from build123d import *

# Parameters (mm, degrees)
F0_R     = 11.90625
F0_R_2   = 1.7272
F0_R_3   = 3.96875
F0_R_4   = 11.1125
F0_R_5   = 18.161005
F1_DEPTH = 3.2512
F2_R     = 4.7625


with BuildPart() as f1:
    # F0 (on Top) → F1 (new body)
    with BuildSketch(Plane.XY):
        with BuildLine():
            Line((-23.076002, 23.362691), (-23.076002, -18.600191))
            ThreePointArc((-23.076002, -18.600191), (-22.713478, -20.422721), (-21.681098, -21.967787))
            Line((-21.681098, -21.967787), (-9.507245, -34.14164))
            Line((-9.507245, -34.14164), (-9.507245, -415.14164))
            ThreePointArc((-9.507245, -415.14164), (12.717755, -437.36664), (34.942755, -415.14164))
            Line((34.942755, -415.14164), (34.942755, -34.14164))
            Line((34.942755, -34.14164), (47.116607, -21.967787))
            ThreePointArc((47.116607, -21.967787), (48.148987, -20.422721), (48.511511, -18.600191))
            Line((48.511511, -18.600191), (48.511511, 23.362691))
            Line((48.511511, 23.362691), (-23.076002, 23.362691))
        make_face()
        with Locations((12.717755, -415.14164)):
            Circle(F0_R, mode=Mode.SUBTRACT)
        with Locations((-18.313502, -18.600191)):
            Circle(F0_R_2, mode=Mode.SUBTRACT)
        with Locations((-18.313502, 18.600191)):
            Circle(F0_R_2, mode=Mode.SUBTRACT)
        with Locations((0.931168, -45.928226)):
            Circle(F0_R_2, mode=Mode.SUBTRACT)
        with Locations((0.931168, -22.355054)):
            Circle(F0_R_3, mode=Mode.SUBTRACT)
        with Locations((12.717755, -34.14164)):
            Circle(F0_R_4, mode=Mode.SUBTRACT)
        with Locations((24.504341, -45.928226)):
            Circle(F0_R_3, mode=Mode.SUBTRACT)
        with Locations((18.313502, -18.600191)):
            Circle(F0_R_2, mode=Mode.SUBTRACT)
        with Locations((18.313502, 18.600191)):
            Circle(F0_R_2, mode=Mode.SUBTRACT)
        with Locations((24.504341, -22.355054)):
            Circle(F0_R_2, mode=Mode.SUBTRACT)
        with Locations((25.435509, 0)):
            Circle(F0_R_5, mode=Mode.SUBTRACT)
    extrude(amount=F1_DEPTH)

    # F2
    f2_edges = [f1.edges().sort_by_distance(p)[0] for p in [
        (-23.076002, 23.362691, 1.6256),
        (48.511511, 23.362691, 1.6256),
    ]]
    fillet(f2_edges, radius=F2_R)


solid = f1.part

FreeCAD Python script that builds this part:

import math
import FreeCAD as App
import Part
import Sketcher
from FreeCAD import Vector
Q = App.Units.Quantity


def edges_at(feature, points):
    """Names of the edges that pass closest to the given points."""
    edges = feature.Shape.Edges
    near = lambda p: min(range(len(edges)), key=lambda i: edges[i].distToShape(Part.Vertex(*p))[0])
    return sorted({f"Edge{near(p) + 1}" for p in points})

doc = App.newDocument("Part")
body = doc.addObject("PartDesign::Body", "Body")

# Sketch on XY plane
sketch1 = body.newObject("Sketcher::SketchObject", "Sketch")
sketch1.AttachmentSupport = (doc.getObject("XY_Plane"), [""])
sketch1.MapMode = "FlatFace"
sketch1.addGeometry([
    Part.LineSegment(Vector(-23.1, 23.4, 0), Vector(-23.1, -18.6, 0)),  # 0
    Part.ArcOfCircle(Part.Circle(Vector(-18.3, -18.6, 0), Vector(0, 0, 1), 4.8), math.radians(-180), math.radians(-135)),  # 1
    Part.LineSegment(Vector(-21.7, -22, 0), Vector(-9.5, -34.1, 0)),  # 2
    Part.LineSegment(Vector(-9.5, -34.1, 0), Vector(-9.5, -415.1, 0)),  # 3
    Part.ArcOfCircle(Part.Circle(Vector(12.7, -415.1, 0), Vector(0, 0, 1), 22.2), math.radians(180), math.radians(360)),  # 4
    Part.LineSegment(Vector(34.9, -415.1, 0), Vector(34.9, -34.1, 0)),  # 5
    Part.LineSegment(Vector(34.9, -34.1, 0), Vector(47.1, -22, 0)),  # 6
    Part.ArcOfCircle(Part.Circle(Vector(43.7, -18.6, 0), Vector(0, 0, 1), 4.8), math.radians(-45), math.radians(0)),  # 7
    Part.LineSegment(Vector(48.5, -18.6, 0), Vector(48.5, 23.4, 0)),  # 8
    Part.LineSegment(Vector(48.5, 23.4, 0), Vector(-23.1, 23.4, 0)),  # 9
    Part.Circle(Vector(12.7, -415.1, 0), Vector(0, 0, 1), 11.9),  # 10
    Part.Circle(Vector(-18.3, -18.6, 0), Vector(0, 0, 1), 1.7),  # 11
    Part.Circle(Vector(-18.3, 18.6, 0), Vector(0, 0, 1), 1.7),  # 12
    Part.Circle(Vector(0.9, -45.9, 0), Vector(0, 0, 1), 1.7),  # 13
    Part.Circle(Vector(0.9, -22.4, 0), Vector(0, 0, 1), 4),  # 14
    Part.Circle(Vector(24.5, -45.9, 0), Vector(0, 0, 1), 4),  # 15
    Part.Circle(Vector(12.7, -34.1, 0), Vector(0, 0, 1), 11.1),  # 16
    Part.Circle(Vector(18.3, -18.6, 0), Vector(0, 0, 1), 1.7),  # 17
    Part.Circle(Vector(18.3, 18.6, 0), Vector(0, 0, 1), 1.7),  # 18
    Part.Circle(Vector(24.5, -22.4, 0), Vector(0, 0, 1), 1.7),  # 19
    Part.Circle(Vector(25.4, 0, 0), Vector(0, 0, 1), 18.2),  # 20
], False)
sketch1.addConstraint([
    Sketcher.Constraint("Tangent", 0, 2, 1, 1),
    Sketcher.Constraint("Tangent", 1, 2, 2, 1),
    Sketcher.Constraint("Coincident", 2, 2, 3, 1),
    Sketcher.Constraint("Tangent", 3, 2, 4, 1),
    Sketcher.Constraint("Tangent", 4, 2, 5, 1),
    Sketcher.Constraint("Coincident", 5, 2, 6, 1),
    Sketcher.Constraint("Tangent", 6, 2, 7, 1),
    Sketcher.Constraint("Tangent", 7, 2, 8, 1),
    Sketcher.Constraint("Coincident", 8, 2, 9, 1),
    Sketcher.Constraint("Coincident", 9, 2, 0, 1),
    Sketcher.Constraint("Vertical", 0),
    Sketcher.Constraint("Vertical", 3),
    Sketcher.Constraint("Vertical", 5),
    Sketcher.Constraint("Vertical", 8),
    Sketcher.Constraint("Horizontal", 9),
    Sketcher.Constraint("Coincident", 10, 3, 4, 3),
    Sketcher.Constraint("Coincident", 11, 3, 1, 3),
    Sketcher.Constraint("Equal", 1, 7),
    Sketcher.Constraint("Equal", 11, 12),
    Sketcher.Constraint("Equal", 12, 13),
    Sketcher.Constraint("Equal", 14, 15),
    Sketcher.Constraint("Equal", 13, 17),
    Sketcher.Constraint("Equal", 17, 18),
    Sketcher.Constraint("Equal", 18, 19),
    Sketcher.Constraint("Symmetric", 12, 3, 17, 3, -1, 1),
    Sketcher.Constraint("Symmetric", 1, 3, 18, 3, -1, 1),
    Sketcher.Constraint("Symmetric", 1, 3, 17, 3, -2),
    Sketcher.Constraint("PointOnObject", 20, 3, -1),
    Sketcher.Constraint("Perpendicular", 2, 6),
    Sketcher.Constraint("Horizontal", 1, 3, 7, 3),
    Sketcher.Constraint("Horizontal", 13, 3, 15, 3),
    Sketcher.Constraint("Horizontal", 14, 3, 19, 3),
    Sketcher.Constraint("Horizontal", 16, 3, 2, 2),
    Sketcher.Constraint("Horizontal", 2, 2, 5, 2),
    Sketcher.Constraint("Horizontal", 1, 2, 6, 2),
    Sketcher.Constraint("Vertical", 13, 3, 14, 3),
    Sketcher.Constraint("Vertical", 10, 3, 16, 3),
    Sketcher.Constraint("Vertical", 15, 3, 19, 3),
    Sketcher.Constraint("DistanceY", 3, 2, 3, 1, Q("15 in")),
    Sketcher.Constraint("Diameter", 10, Q("0.9375 in")),
    Sketcher.Constraint("Diameter", 11, Q("0.136 in")),
    Sketcher.Constraint("Diameter", 14, Q("0.3125 in")),
    Sketcher.Constraint("Diameter", 16, Q("0.875 in")),
    Sketcher.Constraint("Radius", 1, Q("0.1875001 in")),
    Sketcher.Constraint("Radius", 4, Q("0.875 in")),
    Sketcher.Constraint("Diameter", 20, 36.32201),
    Sketcher.Constraint("DistanceY", 18, 3, 8, 2, Q("0.1875 in")),
    Sketcher.Constraint("DistanceX", 1, 3, -1, 1, 18.3135),
    Sketcher.Constraint("DistanceX", 20, 3, 7, 3, 18.3135),
    Sketcher.Constraint("Distance", 2, 17.216428),
    Sketcher.Constraint("DistanceY", 0, 2, 0, 1, 41.962882),
    Sketcher.Constraint("DistanceX", -1, 1, 15, 3, 24.504341),
    Sketcher.Constraint("DistanceX", 1, 3, 13, 3, 19.244668),
    Sketcher.Constraint("DistanceY", 13, 3, 1, 2, 23.960439),
    Sketcher.Constraint("DistanceY", 14, 3, -1, 1, 22.355054),
])
pad1 = body.newObject("PartDesign::Pad", "Pad")
pad1.Profile = sketch1
pad1.Length = Q("0.128 in")
doc.recompute()

fillet = body.newObject("PartDesign::Fillet", "Fillet")
fillet.Base = (pad1, edges_at(pad1, [(-23.076, 23.363, 1.626), (48.512, 23.363, 1.626)]))
fillet.Radius = Q("0.1875 in")

doc.recompute()
